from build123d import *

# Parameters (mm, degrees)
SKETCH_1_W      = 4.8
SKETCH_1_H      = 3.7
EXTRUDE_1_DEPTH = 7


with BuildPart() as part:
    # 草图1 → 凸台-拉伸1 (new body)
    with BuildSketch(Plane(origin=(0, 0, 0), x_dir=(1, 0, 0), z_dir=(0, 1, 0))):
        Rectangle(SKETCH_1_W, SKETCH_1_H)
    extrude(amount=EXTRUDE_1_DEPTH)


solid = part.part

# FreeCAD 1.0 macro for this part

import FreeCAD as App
import Part
import Sketcher
from FreeCAD import Vector


def add_polygon(sketch, points):
    """Adds a closed chain of lines whose ends are joined by coincident constraints."""
    first, n = sketch.GeometryCount, len(points)
    for a, b in zip(points, points[1:] + points[:1]):
        sketch.addGeometry(Part.LineSegment(App.Vector(*a, 0), App.Vector(*b, 0)), False)
    for i in range(n):
        sketch.addConstraint(Sketcher.Constraint("Coincident", first + i, 2, first + (i + 1) % n, 1))

doc = App.newDocument("Part")
body = doc.addObject("PartDesign::Body", "Body")

sketch1 = doc.addObject("Sketcher::SketchObject", "Sketch")
body.addObject(sketch1)
sketch1.AttachmentSupport = (doc.XZ_Plane, [""])
sketch1.MapMode = "FlatFace"
add_polygon(sketch1, [(-2.4, -1.9), (-2.4, 1.9), (2.4, 1.9), (2.4, -1.9)])
sketch1.addConstraint(Sketcher.Constraint("Vertical", 0))
sketch1.addConstraint(Sketcher.Constraint("Horizontal", 1))
sketch1.addConstraint(Sketcher.Constraint("Vertical", 2))
sketch1.addConstraint(Sketcher.Constraint("Horizontal", 3))
sketch1.addConstraint(Sketcher.Constraint("Symmetric", 0, 2, 2, 2, -1, 1))
sketch1.addConstraint(Sketcher.Constraint("DistanceX", 1, 1, 1, 2, 4.8))
sketch1.addConstraint(Sketcher.Constraint("DistanceY", 0, 1, 0, 2, 3.7))
pad1 = doc.addObject("PartDesign::Pad", "Pad")
body.addObject(pad1)
pad1.Profile = sketch1
pad1.Length = 7
pad1.Reversed = True

doc.recompute()
